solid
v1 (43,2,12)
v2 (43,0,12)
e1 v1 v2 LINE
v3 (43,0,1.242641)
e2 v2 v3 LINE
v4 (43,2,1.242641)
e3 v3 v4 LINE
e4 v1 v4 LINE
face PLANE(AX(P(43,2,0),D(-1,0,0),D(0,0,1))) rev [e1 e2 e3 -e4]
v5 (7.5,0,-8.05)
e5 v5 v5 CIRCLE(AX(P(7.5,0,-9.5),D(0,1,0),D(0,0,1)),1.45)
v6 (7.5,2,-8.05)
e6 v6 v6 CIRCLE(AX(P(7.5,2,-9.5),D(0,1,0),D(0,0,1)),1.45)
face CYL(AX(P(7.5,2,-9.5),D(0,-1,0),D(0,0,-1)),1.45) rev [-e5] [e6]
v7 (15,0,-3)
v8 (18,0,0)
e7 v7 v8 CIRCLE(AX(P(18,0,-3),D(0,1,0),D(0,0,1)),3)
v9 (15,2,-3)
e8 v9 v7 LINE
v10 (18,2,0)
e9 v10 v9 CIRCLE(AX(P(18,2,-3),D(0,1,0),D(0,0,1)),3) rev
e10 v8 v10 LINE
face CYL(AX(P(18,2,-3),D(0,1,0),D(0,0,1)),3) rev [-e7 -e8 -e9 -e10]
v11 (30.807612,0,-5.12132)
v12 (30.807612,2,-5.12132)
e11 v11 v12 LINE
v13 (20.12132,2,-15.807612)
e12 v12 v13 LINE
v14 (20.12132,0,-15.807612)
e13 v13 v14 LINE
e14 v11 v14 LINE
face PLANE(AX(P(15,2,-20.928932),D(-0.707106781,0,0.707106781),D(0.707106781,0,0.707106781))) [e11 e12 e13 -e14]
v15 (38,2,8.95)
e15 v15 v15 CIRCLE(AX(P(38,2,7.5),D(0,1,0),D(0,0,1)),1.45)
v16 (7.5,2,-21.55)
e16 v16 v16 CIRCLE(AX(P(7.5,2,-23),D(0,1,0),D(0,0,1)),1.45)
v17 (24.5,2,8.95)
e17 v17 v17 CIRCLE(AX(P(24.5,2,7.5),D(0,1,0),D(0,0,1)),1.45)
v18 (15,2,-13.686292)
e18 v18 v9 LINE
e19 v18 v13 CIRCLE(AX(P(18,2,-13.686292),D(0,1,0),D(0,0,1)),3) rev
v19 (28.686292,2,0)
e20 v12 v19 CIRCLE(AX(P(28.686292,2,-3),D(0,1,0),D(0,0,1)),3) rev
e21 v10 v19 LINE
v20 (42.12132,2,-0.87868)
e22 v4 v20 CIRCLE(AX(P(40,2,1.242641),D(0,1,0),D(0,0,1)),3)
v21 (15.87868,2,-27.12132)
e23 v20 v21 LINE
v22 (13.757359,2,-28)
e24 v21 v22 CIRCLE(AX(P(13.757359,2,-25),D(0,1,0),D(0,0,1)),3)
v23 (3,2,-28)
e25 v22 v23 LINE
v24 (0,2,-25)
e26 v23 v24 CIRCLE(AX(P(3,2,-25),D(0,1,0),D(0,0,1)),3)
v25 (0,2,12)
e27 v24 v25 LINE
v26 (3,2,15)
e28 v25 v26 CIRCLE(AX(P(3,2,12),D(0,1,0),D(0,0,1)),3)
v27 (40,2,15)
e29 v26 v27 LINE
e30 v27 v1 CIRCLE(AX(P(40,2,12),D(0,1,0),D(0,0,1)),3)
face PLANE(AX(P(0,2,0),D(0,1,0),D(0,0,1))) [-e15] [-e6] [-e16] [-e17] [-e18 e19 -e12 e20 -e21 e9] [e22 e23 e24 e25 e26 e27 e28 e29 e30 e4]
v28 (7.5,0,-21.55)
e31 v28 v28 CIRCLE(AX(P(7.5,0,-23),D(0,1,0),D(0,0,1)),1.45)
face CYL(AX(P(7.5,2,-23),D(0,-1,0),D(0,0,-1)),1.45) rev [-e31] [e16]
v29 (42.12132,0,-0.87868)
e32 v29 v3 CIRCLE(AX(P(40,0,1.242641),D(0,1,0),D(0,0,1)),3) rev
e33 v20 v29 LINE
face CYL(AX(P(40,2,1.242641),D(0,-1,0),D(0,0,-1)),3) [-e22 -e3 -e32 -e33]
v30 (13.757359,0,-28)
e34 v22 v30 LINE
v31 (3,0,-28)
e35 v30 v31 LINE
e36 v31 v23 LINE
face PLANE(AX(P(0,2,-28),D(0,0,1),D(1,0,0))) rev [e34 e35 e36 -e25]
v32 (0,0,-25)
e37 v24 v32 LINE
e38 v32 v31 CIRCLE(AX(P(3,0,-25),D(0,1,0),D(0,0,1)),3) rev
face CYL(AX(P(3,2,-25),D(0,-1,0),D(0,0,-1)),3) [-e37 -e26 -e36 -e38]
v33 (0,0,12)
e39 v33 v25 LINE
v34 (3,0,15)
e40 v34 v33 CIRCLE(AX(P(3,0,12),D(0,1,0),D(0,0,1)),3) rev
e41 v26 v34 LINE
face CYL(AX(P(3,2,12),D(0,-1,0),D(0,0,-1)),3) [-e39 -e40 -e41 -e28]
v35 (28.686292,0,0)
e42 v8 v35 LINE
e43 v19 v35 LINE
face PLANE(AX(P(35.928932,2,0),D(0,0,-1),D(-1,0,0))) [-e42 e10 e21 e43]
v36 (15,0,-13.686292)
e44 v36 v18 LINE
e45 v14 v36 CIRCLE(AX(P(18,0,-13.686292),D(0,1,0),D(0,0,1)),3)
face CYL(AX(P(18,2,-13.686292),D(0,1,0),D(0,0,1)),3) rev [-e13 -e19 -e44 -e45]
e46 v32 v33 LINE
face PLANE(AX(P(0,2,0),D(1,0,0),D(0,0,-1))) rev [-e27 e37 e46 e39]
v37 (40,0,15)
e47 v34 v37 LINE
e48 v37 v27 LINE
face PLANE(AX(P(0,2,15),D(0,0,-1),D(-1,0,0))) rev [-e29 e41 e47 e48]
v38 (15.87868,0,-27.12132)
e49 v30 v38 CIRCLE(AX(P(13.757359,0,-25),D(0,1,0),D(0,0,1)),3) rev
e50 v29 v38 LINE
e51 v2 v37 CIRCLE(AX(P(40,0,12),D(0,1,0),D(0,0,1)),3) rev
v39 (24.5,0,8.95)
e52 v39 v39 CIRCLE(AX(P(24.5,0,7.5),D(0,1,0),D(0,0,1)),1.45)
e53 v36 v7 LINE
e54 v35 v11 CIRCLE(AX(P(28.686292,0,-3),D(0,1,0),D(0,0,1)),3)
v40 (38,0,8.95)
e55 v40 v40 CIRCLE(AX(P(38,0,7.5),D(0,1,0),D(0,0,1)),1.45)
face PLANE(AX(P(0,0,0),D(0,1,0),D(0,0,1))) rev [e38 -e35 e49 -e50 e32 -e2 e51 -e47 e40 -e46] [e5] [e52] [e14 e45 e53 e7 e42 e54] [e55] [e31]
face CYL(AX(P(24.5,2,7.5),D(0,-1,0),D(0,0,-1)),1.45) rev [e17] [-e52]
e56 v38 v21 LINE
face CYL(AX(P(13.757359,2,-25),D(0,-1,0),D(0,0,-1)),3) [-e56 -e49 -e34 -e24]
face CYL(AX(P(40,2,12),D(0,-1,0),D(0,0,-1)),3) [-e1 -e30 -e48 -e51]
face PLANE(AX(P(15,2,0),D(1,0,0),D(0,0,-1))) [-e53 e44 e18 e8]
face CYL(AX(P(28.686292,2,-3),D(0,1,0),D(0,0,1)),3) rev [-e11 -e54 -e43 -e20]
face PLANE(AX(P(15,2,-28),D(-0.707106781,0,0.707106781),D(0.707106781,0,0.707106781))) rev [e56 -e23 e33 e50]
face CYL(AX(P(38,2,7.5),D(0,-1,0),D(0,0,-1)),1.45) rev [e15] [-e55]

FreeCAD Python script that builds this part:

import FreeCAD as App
import Part
import Sketcher


def edges_at(feature, points):
    """Names of the edges that pass closest to the given points."""
    edges = feature.Shape.Edges
    near = lambda p: min(range(len(edges)), key=lambda i: edges[i].distToShape(Part.Vertex(*p))[0])
    return sorted({f"Edge{near(p) + 1}" for p in points})


def add_polygon(sketch, points):
    """Adds a closed chain of lines whose ends are joined by coincident constraints."""
    first, n = sketch.GeometryCount, len(points)
    for a, b in zip(points, points[1:] + points[:1]):
        sketch.addGeometry(Part.LineSegment(App.Vector(*a, 0), App.Vector(*b, 0)), False)
    for i in range(n):
        sketch.addConstraint(Sketcher.Constraint("Coincident", first + i, 2, first + (i + 1) % n, 1))

doc = App.newDocument("Part")
body = doc.addObject("PartDesign::Body", "Body")

sketch1 = body.newObject("Sketcher::SketchObject", "Sketch")
sketch1.AttachmentSupport = (doc.getObject("XZ_Plane"), [""])
sketch1.MapMode = "FlatFace"
add_polygon(sketch1, [(43, 0), (15, -28), (0, -28), (0, 15), (43, 15)])
sketch1.addGeometry(Part.Circle(App.Vector(38, 7.5, 0), App.Vector(0, 0, 1), 1.4), False)
sketch1.addGeometry(Part.Circle(App.Vector(24.5, 7.5, 0), App.Vector(0, 0, 1), 1.4), False)
add_polygon(sketch1, [(15, -20.9), (35.9, 0), (15, 0)])
sketch1.addGeometry(Part.Circle(App.Vector(7.5, -9.5, 0), App.Vector(0, 0, 1), 1.4), False)
sketch1.addGeometry(Part.Circle(App.Vector(7.5, -23, 0), App.Vector(0, 0, 1), 1.4), False)
sketch1.addConstraint([
    Sketcher.Constraint("Horizontal", 1),
    Sketcher.Constraint("Vertical", 2),
    Sketcher.Constraint("Horizontal", 3),
    Sketcher.Constraint("Vertical", 4),
    Sketcher.Constraint("Horizontal", 8),
    Sketcher.Constraint("Vertical", 9),
    Sketcher.Constraint("Equal", 5, 6),
    Sketcher.Constraint("Equal", 6, 10),
    Sketcher.Constraint("Equal", 10, 11),
    Sketcher.Constraint("PointOnObject", 1, 2, -2),
    Sketcher.Constraint("PointOnObject", 4, 2, -1),
    Sketcher.Constraint("PointOnObject", 7, 2, -1),
    Sketcher.Constraint("Parallel", 0, 7),
    Sketcher.Constraint("Horizontal", 5, 3, 6, 3),
    Sketcher.Constraint("Vertical", 10, 3, 11, 3),
    Sketcher.Constraint("Vertical", 0, 2, 8, 2),
    Sketcher.Constraint("Equal", 3, 2),
    Sketcher.Constraint("Equal", 1, 4),
    Sketcher.Constraint("Diameter", 5, 2.9),
    Sketcher.Constraint("DistanceX", 1, 2, 1, 1, 15.0),
    Sketcher.Constraint("DistanceX", 3, 1, 3, 2, 43.0),
    Sketcher.Constraint("DistanceX", -1, 1, 5, 3, 38.0),
    Sketcher.Constraint("DistanceY", 11, 3, -1, 1, 23.0),
    Sketcher.Constraint("DistanceX", 10, 3, 6, 3, 17.0),
    Sketcher.Constraint("DistanceY", 10, 3, 6, 3, 17.0),
    Sketcher.Constraint("DistanceY", -1, 1, 5, 3, 7.5),
    Sketcher.Constraint("DistanceX", -1, 1, 6, 3, 24.5),
    Sketcher.Constraint("Distance", 7, 29.59798),
])
pad1 = body.newObject("PartDesign::Pad", "Pad")
pad1.Profile = sketch1
pad1.Length = 2
pad1.Reversed = True
doc.recompute()

fillet = body.newObject("PartDesign::Fillet", "Fillet")
fillet.Base = (pad1, edges_at(pad1, [
    (0, 1, -28),
    (15, 1, -28),
    (43, 1, 0),
    (43, 1, 15),
    (0, 1, 15),
    (15, 1, -20.929),
    (15, 1, 0),
    (35.929, 1, 0),
]))
fillet.Radius = 3

doc.recompute()
